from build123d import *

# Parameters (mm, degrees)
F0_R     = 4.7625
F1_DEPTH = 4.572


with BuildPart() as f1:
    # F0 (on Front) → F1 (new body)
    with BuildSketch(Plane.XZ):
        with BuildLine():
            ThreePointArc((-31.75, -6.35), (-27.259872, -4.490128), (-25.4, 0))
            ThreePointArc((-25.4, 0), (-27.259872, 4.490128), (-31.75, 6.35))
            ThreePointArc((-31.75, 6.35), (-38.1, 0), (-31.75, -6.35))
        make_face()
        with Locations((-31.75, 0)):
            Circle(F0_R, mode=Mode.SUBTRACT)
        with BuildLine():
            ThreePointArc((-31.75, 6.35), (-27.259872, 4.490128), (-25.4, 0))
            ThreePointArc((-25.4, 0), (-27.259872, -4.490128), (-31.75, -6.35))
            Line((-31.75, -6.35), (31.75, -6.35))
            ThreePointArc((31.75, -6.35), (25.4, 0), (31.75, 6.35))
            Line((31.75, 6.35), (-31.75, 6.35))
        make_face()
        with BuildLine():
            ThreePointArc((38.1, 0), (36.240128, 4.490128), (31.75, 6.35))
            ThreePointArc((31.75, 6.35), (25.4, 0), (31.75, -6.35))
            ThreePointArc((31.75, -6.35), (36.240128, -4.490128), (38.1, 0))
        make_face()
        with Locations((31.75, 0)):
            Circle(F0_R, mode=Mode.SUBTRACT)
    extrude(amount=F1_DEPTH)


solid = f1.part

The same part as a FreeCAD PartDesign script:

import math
import FreeCAD as App
import Part
import Sketcher
from FreeCAD import Vector
Q = App.Units.Quantity

doc = App.newDocument("Part")
params = doc.addObject("Spreadsheet::Sheet", "Params")
for row, (alias, value) in enumerate([
    ("sketch1_radius", "0.25 in"),
    ("sketch1_diameter", "0.375 in"),
    ("sketch1_width", "2.5 in"),
    ("pad1_length", "0.18 in"),
], start=1):
    params.set(f"A{row}", alias)
    params.set(f"B{row}", "=" + value)
    params.setAlias(f"B{row}", alias)

body = doc.addObject("PartDesign::Body", "Body")

# Sketch on XZ plane
sketch1 = body.newObject("Sketcher::SketchObject", "Sketch")
sketch1.AttachmentSupport = (doc.getObject("XZ_Plane"), [""])
sketch1.MapMode = "FlatFace"
sketch1.addGeometry(Part.ArcOfCircle(Part.Circle(Vector(-31.75, 0, 0), Vector(0, 0, 1), 6.35), math.radians(90), math.radians(270)), False)
sketch1.addGeometry(Part.LineSegment(Vector(-31.75, -6.35, 0), Vector(31.75, -6.35, 0)), False)
sketch1.addGeometry(Part.ArcOfCircle(Part.Circle(Vector(31.75, 0, 0), Vector(0, 0, 1), 6.35), math.radians(-89.999998), math.radians(-0.000002)), False)
sketch1.addGeometry(Part.ArcOfCircle(Part.Circle(Vector(31.75, 0, 0), Vector(0, 0, 1), 6.35), math.radians(0.000002), math.radians(89.999998)), False)
sketch1.addGeometry(Part.LineSegment(Vector(31.75, 6.35, 0), Vector(-31.75, 6.35, 0)), False)
sketch1.addGeometry(Part.Circle(Vector(-31.75, 0, 0), Vector(0, 0, 1), 4.7625), False)
sketch1.addGeometry(Part.Circle(Vector(31.75, 0, 0), Vector(0, 0, 1), 4.7625), False)
sketch1.addConstraint(Sketcher.Constraint("Tangent", 0, 2, 1, 1))
sketch1.addConstraint(Sketcher.Constraint("Tangent", 1, 2, 2, 1))
sketch1.addConstraint(Sketcher.Constraint("Tangent", 2, 2, 3, 1))
sketch1.addConstraint(Sketcher.Constraint("Tangent", 3, 2, 4, 1))
sketch1.addConstraint(Sketcher.Constraint("Tangent", 4, 2, 0, 1))
sketch1.addConstraint(Sketcher.Constraint("Horizontal", 1))
sketch1.addConstraint(Sketcher.Constraint("Horizontal", 4))
sketch1.addConstraint(Sketcher.Constraint("Coincident", 5, 3, 0, 3))
sketch1.addConstraint(Sketcher.Constraint("Coincident", 6, 3, 2, 3))
sketch1.addConstraint(Sketcher.Constraint("Equal", 0, 2))
sketch1.addConstraint(Sketcher.Constraint("Equal", 5, 6))
sketch1.addConstraint(Sketcher.Constraint("Symmetric", 0, 3, 2, 3, -1, 1))
sketch1.addConstraint(Sketcher.Constraint("PointOnObject", 2, 2, -1))
sketch1.addConstraint(Sketcher.Constraint("Radius", 0, Q("0.25 in")))
sketch1.addConstraint(Sketcher.Constraint("Diameter", 5, Q("0.375 in")))
sketch1.addConstraint(Sketcher.Constraint("DistanceX", 1, 1, 1, 2, Q("2.5 in")))
sketch1.setExpression("Constraints[13]", "Params.sketch1_radius")
sketch1.setExpression("Constraints[14]", "Params.sketch1_diameter")
sketch1.setExpression("Constraints[15]", "Params.sketch1_width")
pad1 = body.newObject("PartDesign::Pad", "Pad")
pad1.Profile = sketch1
pad1.setExpression("Length", "Params.pad1_length")

doc.recompute()
